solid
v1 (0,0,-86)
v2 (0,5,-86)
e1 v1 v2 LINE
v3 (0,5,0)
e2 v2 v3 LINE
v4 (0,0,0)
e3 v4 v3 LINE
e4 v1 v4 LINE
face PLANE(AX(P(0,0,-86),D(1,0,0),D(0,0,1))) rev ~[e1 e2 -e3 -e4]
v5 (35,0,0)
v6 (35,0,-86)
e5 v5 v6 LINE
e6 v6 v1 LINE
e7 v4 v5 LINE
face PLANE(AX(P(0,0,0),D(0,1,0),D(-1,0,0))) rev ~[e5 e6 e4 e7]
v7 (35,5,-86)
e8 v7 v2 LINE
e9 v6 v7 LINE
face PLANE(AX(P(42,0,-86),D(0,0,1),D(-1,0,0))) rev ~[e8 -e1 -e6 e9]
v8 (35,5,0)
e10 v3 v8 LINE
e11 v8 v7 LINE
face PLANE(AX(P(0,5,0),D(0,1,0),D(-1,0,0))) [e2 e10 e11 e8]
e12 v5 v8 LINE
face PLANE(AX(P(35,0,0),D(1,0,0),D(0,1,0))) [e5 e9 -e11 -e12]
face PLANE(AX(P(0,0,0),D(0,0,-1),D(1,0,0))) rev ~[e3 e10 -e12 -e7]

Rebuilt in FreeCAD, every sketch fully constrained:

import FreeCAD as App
import Part
import Sketcher

V = App.Vector
Q = App.Units.Quantity

doc = App.newDocument("Part")
body = doc.addObject("PartDesign::Body", "Body")

# Sketch on XZ plane
sketch1 = body.newObject("Sketcher::SketchObject", "Sketch")
sketch1.AttachmentSupport = (doc.getObject("XZ_Plane"), [""])
sketch1.MapMode = "FlatFace"
sketch1.addGeometry(Part.LineSegment(V(0, -86, 0), V(0, 0, 0)), False)
sketch1.addGeometry(Part.LineSegment(V(0, 0, 0), V(42, 0, 0)), False)
sketch1.addGeometry(Part.LineSegment(V(42, 0, 0), V(42, -86, 0)), False)
sketch1.addGeometry(Part.LineSegment(V(42, -86, 0), V(0, -86, 0)), False)
sketch1.addConstraint(Sketcher.Constraint("Coincident", 0, 2, 1, 1))
sketch1.addConstraint(Sketcher.Constraint("Coincident", 1, 2, 2, 1))
sketch1.addConstraint(Sketcher.Constraint("Coincident", 2, 2, 3, 1))
sketch1.addConstraint(Sketcher.Constraint("Coincident", 3, 2, 0, 1))
sketch1.addConstraint(Sketcher.Constraint("Vertical", 0))
sketch1.addConstraint(Sketcher.Constraint("Horizontal", 1))
sketch1.addConstraint(Sketcher.Constraint("Vertical", 2))
sketch1.addConstraint(Sketcher.Constraint("Horizontal", 3))
sketch1.addConstraint(Sketcher.Constraint("Coincident", 0, 2, -1, 1))
sketch1.addConstraint(Sketcher.Constraint("DistanceX", 1, 1, 1, 2, Q("42 mm")))
sketch1.addConstraint(Sketcher.Constraint("DistanceY", 0, 1, 0, 2, Q("86 mm")))
pad1 = body.newObject("PartDesign::Pad", "Pad")
pad1.Profile = sketch1
pad1.Length = 5
pad1.Reversed = True

# Sketch on XY plane
sketch2 = body.newObject("Sketcher::SketchObject", "Sketch001")
sketch2.AttachmentSupport = (doc.getObject("XY_Plane"), [""])
sketch2.MapMode = "FlatFace"
sketch2.addGeometry(Part.LineSegment(V(35, 0, 0), V(42, 0, 0)), False)
sketch2.addGeometry(Part.LineSegment(V(42, 0, 0), V(42, 5, 0)), False)
sketch2.addGeometry(Part.LineSegment(V(42, 5, 0), V(35, 5, 0)), False)
sketch2.addGeometry(Part.LineSegment(V(35, 5, 0), V(35, 0, 0)), False)
sketch2.addConstraint(Sketcher.Constraint("Coincident", 0, 2, 1, 1))
sketch2.addConstraint(Sketcher.Constraint("Coincident", 1, 2, 2, 1))
sketch2.addConstraint(Sketcher.Constraint("Coincident", 2, 2, 3, 1))
sketch2.addConstraint(Sketcher.Constraint("Coincident", 3, 2, 0, 1))
sketch2.addConstraint(Sketcher.Constraint("Horizontal", 0))
sketch2.addConstraint(Sketcher.Constraint("Vertical", 1))
sketch2.addConstraint(Sketcher.Constraint("Horizontal", 2))
sketch2.addConstraint(Sketcher.Constraint("Vertical", 3))
sketch2.addConstraint(Sketcher.Constraint("PointOnObject", 0, 2, -1))
sketch2.addConstraint(Sketcher.Constraint("DistanceX", 0, 1, 0, 2, Q("7 mm")))
sketch2.addConstraint(Sketcher.Constraint("DistanceY", 1, 1, 1, 2, Q("5 mm")))
sketch2.addConstraint(Sketcher.Constraint("DistanceX", -1, 1, 0, 2, Q("42 mm")))
pocket1 = body.newObject("PartDesign::Pocket", "Pocket")
pocket1.Profile = sketch2
pocket1.Length = 106.25

doc.recompute()
